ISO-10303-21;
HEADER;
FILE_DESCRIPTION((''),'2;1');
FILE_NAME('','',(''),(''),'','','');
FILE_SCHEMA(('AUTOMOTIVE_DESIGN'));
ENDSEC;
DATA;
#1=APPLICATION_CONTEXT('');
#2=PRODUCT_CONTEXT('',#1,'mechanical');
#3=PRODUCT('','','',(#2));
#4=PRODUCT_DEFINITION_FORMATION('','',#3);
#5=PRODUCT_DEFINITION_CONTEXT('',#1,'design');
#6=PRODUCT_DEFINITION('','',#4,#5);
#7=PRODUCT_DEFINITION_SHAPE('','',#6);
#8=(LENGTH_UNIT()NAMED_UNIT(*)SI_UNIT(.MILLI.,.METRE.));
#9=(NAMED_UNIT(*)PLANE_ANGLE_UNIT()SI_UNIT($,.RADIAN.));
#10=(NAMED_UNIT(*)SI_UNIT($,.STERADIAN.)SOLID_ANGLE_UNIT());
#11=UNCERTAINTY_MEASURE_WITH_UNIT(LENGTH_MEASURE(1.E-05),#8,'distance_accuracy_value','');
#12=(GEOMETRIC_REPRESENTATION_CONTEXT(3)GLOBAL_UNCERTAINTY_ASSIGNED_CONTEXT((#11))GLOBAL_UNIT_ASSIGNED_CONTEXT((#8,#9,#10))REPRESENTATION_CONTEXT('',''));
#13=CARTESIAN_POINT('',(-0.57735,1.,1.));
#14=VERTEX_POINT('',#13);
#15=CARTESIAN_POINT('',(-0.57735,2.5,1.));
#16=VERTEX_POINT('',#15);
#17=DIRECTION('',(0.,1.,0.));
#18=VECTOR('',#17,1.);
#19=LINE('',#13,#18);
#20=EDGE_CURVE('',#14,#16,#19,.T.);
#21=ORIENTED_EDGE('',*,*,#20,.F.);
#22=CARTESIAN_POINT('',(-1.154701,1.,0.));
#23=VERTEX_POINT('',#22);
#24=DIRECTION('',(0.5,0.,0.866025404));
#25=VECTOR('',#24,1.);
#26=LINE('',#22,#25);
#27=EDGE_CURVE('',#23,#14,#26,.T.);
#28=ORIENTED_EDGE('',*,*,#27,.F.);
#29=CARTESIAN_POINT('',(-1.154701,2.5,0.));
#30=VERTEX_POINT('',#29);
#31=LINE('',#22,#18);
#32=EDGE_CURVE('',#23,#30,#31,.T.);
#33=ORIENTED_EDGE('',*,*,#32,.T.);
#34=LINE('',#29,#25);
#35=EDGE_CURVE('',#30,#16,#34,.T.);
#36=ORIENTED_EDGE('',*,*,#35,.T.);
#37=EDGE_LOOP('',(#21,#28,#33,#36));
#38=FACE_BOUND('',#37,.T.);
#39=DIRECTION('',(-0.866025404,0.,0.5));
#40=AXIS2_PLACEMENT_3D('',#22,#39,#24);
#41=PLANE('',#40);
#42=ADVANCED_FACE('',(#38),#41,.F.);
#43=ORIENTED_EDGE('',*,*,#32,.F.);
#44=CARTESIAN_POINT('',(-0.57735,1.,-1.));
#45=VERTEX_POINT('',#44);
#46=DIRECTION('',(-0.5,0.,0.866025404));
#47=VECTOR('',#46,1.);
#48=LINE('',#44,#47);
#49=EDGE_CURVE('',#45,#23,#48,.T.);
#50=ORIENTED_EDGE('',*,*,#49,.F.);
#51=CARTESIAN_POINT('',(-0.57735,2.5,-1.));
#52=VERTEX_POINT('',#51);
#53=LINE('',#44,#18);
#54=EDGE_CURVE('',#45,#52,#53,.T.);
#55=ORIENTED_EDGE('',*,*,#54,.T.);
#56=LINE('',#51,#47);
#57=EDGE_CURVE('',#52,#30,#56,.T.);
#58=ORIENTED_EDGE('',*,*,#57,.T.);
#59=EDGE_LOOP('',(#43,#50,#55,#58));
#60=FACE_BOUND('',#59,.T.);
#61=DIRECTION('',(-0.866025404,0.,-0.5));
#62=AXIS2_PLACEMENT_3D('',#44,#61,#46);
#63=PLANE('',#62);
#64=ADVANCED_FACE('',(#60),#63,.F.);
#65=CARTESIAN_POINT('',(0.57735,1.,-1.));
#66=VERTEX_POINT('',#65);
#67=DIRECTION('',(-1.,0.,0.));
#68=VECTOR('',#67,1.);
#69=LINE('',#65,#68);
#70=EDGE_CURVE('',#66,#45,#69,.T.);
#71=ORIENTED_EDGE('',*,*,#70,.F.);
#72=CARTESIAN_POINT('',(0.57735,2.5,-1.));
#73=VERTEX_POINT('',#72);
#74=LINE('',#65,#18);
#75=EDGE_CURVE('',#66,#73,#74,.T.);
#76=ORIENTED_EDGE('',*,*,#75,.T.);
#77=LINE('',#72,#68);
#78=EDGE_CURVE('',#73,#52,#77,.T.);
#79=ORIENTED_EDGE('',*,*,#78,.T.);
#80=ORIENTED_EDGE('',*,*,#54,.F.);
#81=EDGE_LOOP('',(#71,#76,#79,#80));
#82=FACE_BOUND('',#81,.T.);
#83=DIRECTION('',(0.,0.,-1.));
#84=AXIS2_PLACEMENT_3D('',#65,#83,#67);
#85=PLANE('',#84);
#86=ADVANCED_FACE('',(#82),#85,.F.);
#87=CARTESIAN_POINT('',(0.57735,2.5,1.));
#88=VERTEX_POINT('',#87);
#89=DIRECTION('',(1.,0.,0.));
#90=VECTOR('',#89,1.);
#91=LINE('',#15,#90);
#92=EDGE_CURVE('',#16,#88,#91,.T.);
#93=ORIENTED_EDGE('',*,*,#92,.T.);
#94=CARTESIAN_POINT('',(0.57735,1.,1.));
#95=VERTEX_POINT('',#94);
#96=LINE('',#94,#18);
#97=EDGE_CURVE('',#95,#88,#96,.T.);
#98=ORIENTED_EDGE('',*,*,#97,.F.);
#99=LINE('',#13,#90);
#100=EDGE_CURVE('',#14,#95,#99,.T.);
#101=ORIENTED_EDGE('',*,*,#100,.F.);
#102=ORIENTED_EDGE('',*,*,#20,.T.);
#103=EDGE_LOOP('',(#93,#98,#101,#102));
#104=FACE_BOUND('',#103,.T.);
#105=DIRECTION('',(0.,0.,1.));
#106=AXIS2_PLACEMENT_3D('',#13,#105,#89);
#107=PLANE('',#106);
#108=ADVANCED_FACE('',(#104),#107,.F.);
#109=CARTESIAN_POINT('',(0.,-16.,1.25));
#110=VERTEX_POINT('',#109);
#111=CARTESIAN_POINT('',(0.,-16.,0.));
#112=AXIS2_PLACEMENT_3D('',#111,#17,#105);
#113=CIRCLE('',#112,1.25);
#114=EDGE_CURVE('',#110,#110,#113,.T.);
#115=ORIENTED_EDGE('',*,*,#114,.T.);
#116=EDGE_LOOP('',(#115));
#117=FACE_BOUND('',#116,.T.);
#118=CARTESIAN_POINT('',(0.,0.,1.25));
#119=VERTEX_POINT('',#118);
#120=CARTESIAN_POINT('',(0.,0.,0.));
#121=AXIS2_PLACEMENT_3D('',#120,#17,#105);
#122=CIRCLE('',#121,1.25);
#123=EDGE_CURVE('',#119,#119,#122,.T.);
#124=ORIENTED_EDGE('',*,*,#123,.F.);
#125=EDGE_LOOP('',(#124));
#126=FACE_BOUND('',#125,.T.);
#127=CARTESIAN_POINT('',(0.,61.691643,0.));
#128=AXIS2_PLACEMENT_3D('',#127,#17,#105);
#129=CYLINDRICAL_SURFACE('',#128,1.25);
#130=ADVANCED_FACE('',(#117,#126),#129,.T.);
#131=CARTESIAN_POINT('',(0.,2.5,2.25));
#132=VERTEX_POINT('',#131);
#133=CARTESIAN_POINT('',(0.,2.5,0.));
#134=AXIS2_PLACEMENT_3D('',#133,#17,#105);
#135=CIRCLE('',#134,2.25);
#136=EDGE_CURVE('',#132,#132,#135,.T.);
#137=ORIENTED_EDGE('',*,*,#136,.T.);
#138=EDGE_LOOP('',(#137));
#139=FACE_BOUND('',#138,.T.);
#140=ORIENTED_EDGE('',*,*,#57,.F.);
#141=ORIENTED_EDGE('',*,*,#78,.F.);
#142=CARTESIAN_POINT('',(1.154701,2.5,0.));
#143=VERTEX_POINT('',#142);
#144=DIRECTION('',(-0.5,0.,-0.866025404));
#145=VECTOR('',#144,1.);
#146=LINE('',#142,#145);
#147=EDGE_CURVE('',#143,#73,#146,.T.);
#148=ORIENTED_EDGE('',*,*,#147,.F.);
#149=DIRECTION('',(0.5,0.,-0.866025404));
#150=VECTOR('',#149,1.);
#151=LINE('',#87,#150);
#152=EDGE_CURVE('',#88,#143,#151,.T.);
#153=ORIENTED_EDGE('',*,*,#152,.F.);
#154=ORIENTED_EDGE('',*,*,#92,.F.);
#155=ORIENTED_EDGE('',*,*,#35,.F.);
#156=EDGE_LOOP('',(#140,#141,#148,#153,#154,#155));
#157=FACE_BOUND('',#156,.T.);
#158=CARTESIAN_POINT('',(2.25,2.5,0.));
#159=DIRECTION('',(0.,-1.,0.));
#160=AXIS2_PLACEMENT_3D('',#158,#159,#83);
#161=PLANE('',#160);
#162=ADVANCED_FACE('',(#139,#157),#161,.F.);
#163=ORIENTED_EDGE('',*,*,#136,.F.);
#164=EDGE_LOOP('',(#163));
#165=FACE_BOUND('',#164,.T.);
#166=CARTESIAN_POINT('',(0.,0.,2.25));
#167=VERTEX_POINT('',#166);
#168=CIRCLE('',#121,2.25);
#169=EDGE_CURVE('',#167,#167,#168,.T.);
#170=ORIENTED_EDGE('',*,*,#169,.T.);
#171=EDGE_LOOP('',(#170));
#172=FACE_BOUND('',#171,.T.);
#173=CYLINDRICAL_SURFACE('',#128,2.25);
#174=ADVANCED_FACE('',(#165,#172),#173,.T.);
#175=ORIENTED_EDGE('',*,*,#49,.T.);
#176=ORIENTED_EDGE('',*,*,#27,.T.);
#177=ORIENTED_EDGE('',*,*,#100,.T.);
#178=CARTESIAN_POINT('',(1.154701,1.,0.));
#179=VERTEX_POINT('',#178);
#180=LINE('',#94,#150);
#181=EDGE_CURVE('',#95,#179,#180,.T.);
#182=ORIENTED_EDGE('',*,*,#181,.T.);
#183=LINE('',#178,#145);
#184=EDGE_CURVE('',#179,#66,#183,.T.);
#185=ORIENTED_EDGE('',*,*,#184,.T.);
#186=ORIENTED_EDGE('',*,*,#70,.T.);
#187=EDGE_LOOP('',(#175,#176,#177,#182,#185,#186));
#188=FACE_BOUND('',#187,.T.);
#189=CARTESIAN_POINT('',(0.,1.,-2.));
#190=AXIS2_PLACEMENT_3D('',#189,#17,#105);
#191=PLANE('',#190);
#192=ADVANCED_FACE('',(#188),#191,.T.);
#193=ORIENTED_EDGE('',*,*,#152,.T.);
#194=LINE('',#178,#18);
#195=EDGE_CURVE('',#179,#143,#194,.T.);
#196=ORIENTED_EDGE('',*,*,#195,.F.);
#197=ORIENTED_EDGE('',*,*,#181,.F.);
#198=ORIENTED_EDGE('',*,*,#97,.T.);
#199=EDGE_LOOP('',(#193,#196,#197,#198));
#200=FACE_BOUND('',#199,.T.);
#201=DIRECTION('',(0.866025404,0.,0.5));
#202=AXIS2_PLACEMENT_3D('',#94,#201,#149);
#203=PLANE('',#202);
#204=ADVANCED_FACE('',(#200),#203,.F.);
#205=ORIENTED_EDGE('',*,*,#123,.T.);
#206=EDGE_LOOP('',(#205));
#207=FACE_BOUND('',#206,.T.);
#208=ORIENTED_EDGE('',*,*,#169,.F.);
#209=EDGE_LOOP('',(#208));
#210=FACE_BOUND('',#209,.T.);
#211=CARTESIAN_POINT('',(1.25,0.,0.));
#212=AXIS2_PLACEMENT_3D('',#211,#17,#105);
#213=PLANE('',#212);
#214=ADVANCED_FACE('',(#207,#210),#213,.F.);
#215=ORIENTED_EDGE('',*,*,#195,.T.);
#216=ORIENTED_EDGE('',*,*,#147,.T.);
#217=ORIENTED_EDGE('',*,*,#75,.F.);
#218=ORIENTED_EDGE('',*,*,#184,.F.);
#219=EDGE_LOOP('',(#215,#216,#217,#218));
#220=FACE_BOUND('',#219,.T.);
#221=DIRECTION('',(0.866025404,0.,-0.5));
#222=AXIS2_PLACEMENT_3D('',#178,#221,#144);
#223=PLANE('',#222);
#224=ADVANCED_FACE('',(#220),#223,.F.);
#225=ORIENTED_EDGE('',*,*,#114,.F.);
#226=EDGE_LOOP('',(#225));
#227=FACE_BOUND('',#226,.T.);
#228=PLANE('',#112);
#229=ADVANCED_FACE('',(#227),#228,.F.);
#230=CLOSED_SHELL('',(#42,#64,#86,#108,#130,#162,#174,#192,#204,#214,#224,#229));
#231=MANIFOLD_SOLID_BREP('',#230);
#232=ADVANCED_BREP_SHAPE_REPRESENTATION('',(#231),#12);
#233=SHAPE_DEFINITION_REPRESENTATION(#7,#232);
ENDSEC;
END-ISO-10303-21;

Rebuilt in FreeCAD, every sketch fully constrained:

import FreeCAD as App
import Part
import Sketcher
from FreeCAD import Vector
Q = App.Units.Quantity


def add_polygon(sketch, points):
    """Adds a closed chain of lines whose ends are joined by coincident constraints."""
    first, n = sketch.GeometryCount, len(points)
    for a, b in zip(points, points[1:] + points[:1]):
        sketch.addGeometry(Part.LineSegment(App.Vector(*a, 0), App.Vector(*b, 0)), False)
    for i in range(n):
        sketch.addConstraint(Sketcher.Constraint("Coincident", first + i, 2, first + (i + 1) % n, 1))

doc = App.newDocument("Part")
params = doc.addObject("Spreadsheet::Sheet", "Params")
for row, (alias, value) in enumerate([
    ("sketch1_width", "1 mm"),
    ("sketch1_height", "16 mm"),
    ("sketch1_height2", "2.5 mm"),
    ("sketch1_width2", "1.25 mm"),
    ("revolution_angle", "360 deg"),
    ("pocket1_length", "1.5 mm"),
], start=1):
    params.set(f"A{row}", alias)
    params.set(f"B{row}", "=" + value)
    params.setAlias(f"B{row}", alias)

body = doc.addObject("PartDesign::Body", "Body")

# Sketch on XY plane
sketch1 = doc.addObject("Sketcher::SketchObject", "Sketch")
body.addObject(sketch1)
sketch1.AttachmentSupport = (doc.XY_Plane, [""])
sketch1.MapMode = "FlatFace"
add_polygon(sketch1, [(0, -16), (1.2, -16), (1.2, 0), (2.2, 0), (2.2, 2.5), (0, 2.5)])  # lines 0-5
sketch1.addConstraint(Sketcher.Constraint("Horizontal", 0))
sketch1.addConstraint(Sketcher.Constraint("Vertical", 1))
sketch1.addConstraint(Sketcher.Constraint("Horizontal", 2))
sketch1.addConstraint(Sketcher.Constraint("Vertical", 3))
sketch1.addConstraint(Sketcher.Constraint("Horizontal", 4))
sketch1.addConstraint(Sketcher.Constraint("Vertical", 5))
sketch1.addConstraint(Sketcher.Constraint("PointOnObject", 1, 2, -1))
sketch1.addConstraint(Sketcher.Constraint("PointOnObject", 4, 2, -2))
sketch1.addConstraint(Sketcher.Constraint("DistanceX", 2, 1, 2, 2, 1.0))
sketch1.addConstraint(Sketcher.Constraint("DistanceY", 1, 1, 1, 2, 16.0))
sketch1.addConstraint(Sketcher.Constraint("DistanceY", 3, 1, 3, 2, 2.5))
sketch1.addConstraint(Sketcher.Constraint("DistanceX", 0, 1, 0, 2, 1.25))
sketch1.setExpression("Constraints[14]", "Params.sketch1_width")
sketch1.setExpression("Constraints[15]", "Params.sketch1_height")
sketch1.setExpression("Constraints[16]", "Params.sketch1_height2")
sketch1.setExpression("Constraints[17]", "Params.sketch1_width2")
revolution = doc.addObject("PartDesign::Revolution", "Revolution")
body.addObject(revolution)
revolution.Profile = sketch1
revolution.ReferenceAxis = (sketch1, ["V_Axis"])
revolution.setExpression("Angle", "Params.revolution_angle")

# Sketch on XZ plane
sketch2 = doc.addObject("Sketcher::SketchObject", "Sketch001")
body.addObject(sketch2)
sketch2.AttachmentSupport = (doc.XZ_Plane, [""])
sketch2.MapMode = "FlatFace"
sketch2.AttachmentOffset = App.Placement(Vector(0, 0, -2.5), App.Rotation())
add_polygon(sketch2, [(0.6, -1), (-0.6, -1), (-1.2, 0), (-0.6, 1), (0.6, 1), (1.2, 0)])  # lines 0-5
sketch2.addConstraint(Sketcher.Constraint("Horizontal", 0))
sketch2.addConstraint(Sketcher.Constraint("Horizontal", 3))
sketch2.addConstraint(Sketcher.Constraint("Symmetric", 0, 2, 3, 2, -1, 1))
sketch2.addConstraint(Sketcher.Constraint("Symmetric", 1, 2, 4, 2, -1, 1))
sketch2.addConstraint(Sketcher.Constraint("PointOnObject", 1, 2, -1))
sketch2.addConstraint(Sketcher.Constraint("Parallel", 2, 5))
sketch2.addConstraint(Sketcher.Constraint("Vertical", 0, 2, 2, 2))
sketch2.addConstraint(Sketcher.Constraint("Angle", 1, Q("120 deg")))
sketch2.addConstraint(Sketcher.Constraint("DistanceY", 0, 2, -1, 1, 1.0))
sketch2.addConstraint(Sketcher.Constraint("DistanceX", 0, 2, 0, 1, 1.154701))
pocket1 = doc.addObject("PartDesign::Pocket", "Pocket")
body.addObject(pocket1)
pocket1.Profile = sketch2
pocket1.setExpression("Length", "Params.pocket1_length")
pocket1.Reversed = True

doc.recompute()
